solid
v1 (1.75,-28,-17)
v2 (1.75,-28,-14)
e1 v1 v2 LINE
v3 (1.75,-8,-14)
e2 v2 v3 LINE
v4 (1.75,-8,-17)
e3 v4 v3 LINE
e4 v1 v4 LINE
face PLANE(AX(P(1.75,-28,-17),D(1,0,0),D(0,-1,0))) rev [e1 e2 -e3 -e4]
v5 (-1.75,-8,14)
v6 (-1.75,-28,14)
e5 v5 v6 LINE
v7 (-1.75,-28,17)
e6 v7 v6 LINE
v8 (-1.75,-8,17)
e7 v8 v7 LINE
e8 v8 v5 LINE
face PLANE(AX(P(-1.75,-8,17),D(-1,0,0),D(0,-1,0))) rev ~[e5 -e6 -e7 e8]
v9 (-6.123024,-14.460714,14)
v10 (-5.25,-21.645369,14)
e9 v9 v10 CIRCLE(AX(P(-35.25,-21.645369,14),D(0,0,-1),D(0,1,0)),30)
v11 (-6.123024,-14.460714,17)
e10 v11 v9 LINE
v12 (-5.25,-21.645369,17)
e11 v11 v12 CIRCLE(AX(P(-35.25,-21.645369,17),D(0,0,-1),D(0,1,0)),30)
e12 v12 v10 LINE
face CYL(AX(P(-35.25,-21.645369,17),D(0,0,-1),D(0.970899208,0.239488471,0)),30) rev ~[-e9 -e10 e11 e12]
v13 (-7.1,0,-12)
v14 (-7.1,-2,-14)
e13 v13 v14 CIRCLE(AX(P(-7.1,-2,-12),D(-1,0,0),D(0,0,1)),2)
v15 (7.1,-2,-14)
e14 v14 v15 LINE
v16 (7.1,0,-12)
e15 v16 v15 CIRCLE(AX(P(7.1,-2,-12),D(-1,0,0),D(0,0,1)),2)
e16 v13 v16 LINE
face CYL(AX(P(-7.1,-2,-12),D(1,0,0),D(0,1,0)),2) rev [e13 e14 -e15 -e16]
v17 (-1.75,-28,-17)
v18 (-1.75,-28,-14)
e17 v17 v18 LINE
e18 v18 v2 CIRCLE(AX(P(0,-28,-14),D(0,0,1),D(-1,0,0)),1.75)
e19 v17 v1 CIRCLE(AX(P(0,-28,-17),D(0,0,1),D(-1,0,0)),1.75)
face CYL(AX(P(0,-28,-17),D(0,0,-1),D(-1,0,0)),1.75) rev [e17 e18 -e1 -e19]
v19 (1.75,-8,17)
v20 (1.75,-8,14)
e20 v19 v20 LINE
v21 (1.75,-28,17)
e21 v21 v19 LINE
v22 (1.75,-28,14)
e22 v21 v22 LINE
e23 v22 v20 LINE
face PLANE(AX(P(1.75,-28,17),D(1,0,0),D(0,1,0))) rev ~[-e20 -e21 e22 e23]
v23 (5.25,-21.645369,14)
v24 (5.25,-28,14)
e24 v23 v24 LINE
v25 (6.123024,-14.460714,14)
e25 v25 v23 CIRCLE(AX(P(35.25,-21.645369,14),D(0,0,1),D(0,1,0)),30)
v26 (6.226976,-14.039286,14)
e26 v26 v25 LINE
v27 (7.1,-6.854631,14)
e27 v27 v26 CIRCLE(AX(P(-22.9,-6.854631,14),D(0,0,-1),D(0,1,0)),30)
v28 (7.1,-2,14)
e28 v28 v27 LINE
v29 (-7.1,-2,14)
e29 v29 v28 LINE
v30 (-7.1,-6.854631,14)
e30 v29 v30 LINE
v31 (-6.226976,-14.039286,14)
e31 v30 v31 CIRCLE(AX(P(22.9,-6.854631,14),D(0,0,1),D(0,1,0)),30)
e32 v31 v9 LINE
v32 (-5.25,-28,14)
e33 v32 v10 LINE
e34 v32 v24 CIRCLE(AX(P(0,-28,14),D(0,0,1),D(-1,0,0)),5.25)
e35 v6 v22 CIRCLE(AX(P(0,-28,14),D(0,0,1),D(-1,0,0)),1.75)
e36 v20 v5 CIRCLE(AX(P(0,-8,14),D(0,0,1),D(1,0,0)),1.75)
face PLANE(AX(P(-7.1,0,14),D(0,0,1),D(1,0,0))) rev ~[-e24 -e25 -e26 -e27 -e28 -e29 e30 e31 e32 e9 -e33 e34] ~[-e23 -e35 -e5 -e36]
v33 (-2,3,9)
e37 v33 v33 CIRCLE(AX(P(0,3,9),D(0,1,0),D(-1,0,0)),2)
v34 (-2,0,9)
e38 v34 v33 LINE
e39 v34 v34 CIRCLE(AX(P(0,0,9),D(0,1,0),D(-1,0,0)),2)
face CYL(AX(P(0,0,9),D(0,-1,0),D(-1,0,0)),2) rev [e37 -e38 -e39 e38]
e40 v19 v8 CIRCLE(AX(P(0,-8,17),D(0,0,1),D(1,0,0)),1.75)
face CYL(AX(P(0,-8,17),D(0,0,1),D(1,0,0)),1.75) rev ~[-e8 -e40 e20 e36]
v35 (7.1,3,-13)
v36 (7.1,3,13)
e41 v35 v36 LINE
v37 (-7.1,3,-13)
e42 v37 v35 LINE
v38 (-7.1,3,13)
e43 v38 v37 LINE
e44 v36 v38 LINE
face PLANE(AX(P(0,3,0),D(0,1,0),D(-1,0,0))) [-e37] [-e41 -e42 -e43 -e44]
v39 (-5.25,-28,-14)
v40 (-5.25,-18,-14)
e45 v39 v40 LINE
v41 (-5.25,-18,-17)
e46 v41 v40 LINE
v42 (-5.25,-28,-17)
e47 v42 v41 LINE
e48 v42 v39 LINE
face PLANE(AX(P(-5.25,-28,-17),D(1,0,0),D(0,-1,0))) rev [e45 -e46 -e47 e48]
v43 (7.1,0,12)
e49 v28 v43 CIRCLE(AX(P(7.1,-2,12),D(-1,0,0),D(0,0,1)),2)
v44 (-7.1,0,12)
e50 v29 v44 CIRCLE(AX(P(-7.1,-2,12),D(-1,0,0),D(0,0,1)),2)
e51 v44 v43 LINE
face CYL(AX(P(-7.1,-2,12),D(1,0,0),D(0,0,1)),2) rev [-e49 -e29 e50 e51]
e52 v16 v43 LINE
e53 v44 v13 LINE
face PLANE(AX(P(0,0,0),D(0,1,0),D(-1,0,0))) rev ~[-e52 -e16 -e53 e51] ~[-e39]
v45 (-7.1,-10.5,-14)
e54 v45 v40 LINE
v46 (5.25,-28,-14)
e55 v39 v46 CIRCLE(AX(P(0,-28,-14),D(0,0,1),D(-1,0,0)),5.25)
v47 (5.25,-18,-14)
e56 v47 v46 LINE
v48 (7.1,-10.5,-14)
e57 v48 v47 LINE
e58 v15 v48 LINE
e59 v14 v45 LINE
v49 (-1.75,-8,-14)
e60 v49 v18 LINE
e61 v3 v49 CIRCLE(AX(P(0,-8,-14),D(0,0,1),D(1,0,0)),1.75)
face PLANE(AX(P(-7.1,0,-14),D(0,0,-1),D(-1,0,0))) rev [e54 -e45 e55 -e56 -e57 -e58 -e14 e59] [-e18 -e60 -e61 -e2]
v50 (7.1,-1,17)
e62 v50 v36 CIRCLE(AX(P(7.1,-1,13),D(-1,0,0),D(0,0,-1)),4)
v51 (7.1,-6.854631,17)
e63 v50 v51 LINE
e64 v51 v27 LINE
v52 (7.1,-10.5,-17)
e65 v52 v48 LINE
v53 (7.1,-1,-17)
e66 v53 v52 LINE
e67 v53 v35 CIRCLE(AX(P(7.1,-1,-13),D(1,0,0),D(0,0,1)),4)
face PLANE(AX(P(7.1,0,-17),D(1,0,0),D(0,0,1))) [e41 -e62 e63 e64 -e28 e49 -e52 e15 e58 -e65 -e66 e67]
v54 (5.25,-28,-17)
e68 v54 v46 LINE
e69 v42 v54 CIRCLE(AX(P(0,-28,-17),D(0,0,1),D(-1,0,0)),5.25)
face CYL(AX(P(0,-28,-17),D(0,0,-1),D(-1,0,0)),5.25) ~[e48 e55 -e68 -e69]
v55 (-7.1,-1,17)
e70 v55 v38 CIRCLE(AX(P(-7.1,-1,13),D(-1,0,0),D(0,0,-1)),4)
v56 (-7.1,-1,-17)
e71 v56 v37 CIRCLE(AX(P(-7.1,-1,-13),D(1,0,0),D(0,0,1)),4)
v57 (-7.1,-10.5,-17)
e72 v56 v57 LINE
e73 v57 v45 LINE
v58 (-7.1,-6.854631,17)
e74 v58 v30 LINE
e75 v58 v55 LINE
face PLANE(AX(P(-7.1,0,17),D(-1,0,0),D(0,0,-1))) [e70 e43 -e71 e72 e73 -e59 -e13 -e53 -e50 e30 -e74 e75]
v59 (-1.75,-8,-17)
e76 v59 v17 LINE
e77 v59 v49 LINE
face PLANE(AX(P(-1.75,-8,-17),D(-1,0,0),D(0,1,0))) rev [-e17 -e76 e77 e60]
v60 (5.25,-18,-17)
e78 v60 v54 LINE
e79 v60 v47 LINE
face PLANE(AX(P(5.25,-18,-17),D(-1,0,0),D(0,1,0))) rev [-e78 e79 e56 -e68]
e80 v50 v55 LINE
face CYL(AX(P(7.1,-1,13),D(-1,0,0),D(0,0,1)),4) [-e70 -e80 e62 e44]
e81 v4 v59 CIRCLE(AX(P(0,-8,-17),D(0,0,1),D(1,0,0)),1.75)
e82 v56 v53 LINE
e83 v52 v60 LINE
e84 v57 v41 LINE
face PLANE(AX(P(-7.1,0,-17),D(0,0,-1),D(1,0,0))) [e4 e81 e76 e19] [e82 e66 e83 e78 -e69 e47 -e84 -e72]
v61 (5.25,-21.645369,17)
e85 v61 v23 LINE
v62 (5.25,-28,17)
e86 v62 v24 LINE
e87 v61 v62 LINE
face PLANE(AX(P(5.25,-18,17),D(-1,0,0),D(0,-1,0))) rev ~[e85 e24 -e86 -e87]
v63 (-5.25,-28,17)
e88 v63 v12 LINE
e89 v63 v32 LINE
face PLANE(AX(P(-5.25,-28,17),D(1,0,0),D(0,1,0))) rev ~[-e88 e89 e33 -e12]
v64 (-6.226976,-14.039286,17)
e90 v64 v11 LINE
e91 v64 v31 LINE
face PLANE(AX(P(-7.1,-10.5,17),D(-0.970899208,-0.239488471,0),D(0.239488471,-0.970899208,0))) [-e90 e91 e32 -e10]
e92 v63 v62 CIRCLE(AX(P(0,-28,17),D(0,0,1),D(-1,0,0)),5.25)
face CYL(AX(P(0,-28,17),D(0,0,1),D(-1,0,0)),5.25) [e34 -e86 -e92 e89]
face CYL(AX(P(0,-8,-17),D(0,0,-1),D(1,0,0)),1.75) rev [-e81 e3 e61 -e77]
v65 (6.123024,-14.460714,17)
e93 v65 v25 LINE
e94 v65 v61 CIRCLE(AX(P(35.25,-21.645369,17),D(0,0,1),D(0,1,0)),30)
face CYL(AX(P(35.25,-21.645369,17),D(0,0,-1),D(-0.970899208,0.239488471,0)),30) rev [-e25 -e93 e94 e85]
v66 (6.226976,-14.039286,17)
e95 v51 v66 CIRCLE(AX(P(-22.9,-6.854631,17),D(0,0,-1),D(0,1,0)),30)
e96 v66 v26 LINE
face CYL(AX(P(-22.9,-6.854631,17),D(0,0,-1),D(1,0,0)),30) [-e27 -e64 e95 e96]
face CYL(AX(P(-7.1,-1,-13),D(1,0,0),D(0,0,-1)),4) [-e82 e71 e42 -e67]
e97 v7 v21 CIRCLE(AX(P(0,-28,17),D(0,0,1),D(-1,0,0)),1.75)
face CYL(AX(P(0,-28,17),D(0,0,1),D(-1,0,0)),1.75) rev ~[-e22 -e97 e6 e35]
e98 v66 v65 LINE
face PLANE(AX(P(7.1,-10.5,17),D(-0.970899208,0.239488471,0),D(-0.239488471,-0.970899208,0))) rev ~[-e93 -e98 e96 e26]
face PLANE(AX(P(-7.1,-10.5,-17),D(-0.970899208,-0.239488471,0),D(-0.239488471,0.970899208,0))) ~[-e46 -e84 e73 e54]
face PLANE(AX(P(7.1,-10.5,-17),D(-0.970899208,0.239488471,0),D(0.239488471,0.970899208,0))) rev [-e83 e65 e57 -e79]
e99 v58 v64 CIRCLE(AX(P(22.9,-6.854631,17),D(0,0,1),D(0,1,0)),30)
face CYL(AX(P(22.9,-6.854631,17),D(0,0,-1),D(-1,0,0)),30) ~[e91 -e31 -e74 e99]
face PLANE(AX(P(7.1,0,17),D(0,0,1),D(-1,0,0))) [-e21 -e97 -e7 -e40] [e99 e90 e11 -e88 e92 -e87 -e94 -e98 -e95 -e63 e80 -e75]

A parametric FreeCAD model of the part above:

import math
import FreeCAD as App
import Part
import Sketcher

V = App.Vector
Q = App.Units.Quantity


def edges_at(feature, points):
    """Names of the edges that pass closest to the given points."""
    edges = feature.Shape.Edges
    near = lambda p: min(range(len(edges)), key=lambda i: edges[i].distToShape(Part.Vertex(*p))[0])
    return sorted({f"Edge{near(p) + 1}" for p in points})

doc = App.newDocument("Part")
params = doc.addObject("Spreadsheet::Sheet", "Params")
for row, (alias, value) in enumerate([
    ("sketch1_diameter", "4 mm"),
    ("sketch1_height", "34 mm"),
    ("sketch1_width", "14.2 mm"),
    ("pad1_length", "3 mm"),
    ("sketch2_height", "20 mm"),
    ("sketch2_radius", "1.75 mm"),
    ("sketch2_height2", "10 mm"),
    ("sketch2_height3", "10.5 mm"),
    ("pad2_length", "3 mm"),
    ("fillet_radius", "30 mm"),
    ("fillet2_radius", "4 mm"),
    ("fillet3_radius", "2 mm"),
], start=1):
    params.set(f"A{row}", alias)
    params.set(f"B{row}", "=" + value)
    params.setAlias(f"B{row}", alias)

body = doc.addObject("PartDesign::Body", "Body")

sketch1 = body.newObject("Sketcher::SketchObject", "Sketch")
sketch1.AttachmentSupport = (doc.getObject("XZ_Plane"), [""])
sketch1.MapMode = "FlatFace"
sketch1.addGeometry([
    Part.LineSegment(V(7.1, -17, 0), V(-7.1, -17, 0)),
    Part.LineSegment(V(-7.1, -17, 0), V(-7.1, 17, 0)),
    Part.LineSegment(V(-7.1, 17, 0), V(7.1, 17, 0)),
    Part.LineSegment(V(7.1, 17, 0), V(7.1, -17, 0)),
    Part.Circle(V(0, 9, 0), V(0, 0, 1), 2),
], False)
sketch1.addConstraint([
    Sketcher.Constraint("Coincident", 0, 2, 1, 1),
    Sketcher.Constraint("Coincident", 1, 2, 2, 1),
    Sketcher.Constraint("Coincident", 2, 2, 3, 1),
    Sketcher.Constraint("Coincident", 3, 2, 0, 1),
    Sketcher.Constraint("Horizontal", 0),
    Sketcher.Constraint("Vertical", 1),
    Sketcher.Constraint("Horizontal", 2),
    Sketcher.Constraint("Vertical", 3),
    Sketcher.Constraint("Symmetric", 0, 2, 2, 2, -1, 1),
    Sketcher.Constraint("PointOnObject", 4, 3, -2),
    Sketcher.Constraint("Diameter", 4, Q("4 mm")),
    Sketcher.Constraint("DistanceY", 1, 1, 1, 2, Q("34 mm")),
    Sketcher.Constraint("DistanceX", 0, 2, 0, 1, Q("14.2 mm")),
    Sketcher.Constraint("DistanceY", 4, 3, 1, 2, Q("8 mm")),
])
sketch1.setExpression("Constraints[10]", "Params.sketch1_diameter")
sketch1.setExpression("Constraints[11]", "Params.sketch1_height")
sketch1.setExpression("Constraints[12]", "Params.sketch1_width")
pad1 = body.newObject("PartDesign::Pad", "Pad")
pad1.Profile = sketch1
pad1.setExpression("Length", "Params.pad1_length")
pad1.Reversed = True

sketch2 = body.newObject("Sketcher::SketchObject", "Sketch001")
sketch2.AttachmentSupport = (doc.getObject("XY_Plane"), [""])
sketch2.MapMode = "FlatFace"
sketch2.AttachmentOffset = App.Placement(V(0, 0, 17), App.Rotation())
sketch2.addGeometry([
    Part.LineSegment(V(7.1, 0, 0), V(-7.1, 0, 0)),
    Part.LineSegment(V(-7.1, 0, 0), V(-7.1, -10.5, 0)),
    Part.LineSegment(V(-7.1, -10.5, 0), V(-5.25, -18, 0)),
    Part.LineSegment(V(-5.25, -18, 0), V(-5.25, -28, 0)),
    Part.ArcOfCircle(Part.Circle(V(0, -28, 0), V(0, 0, 1), 5.25), math.radians(180), math.radians(360)),
    Part.LineSegment(V(5.25, -28, 0), V(5.25, -18, 0)),
    Part.LineSegment(V(5.25, -18, 0), V(7.1, -10.5, 0)),
    Part.LineSegment(V(7.1, -10.5, 0), V(7.1, 0, 0)),
    Part.ArcOfCircle(Part.Circle(V(0, -8, 0), V(0, 0, 1), 1.75), math.radians(0), math.radians(180)),
    Part.LineSegment(V(1.75, -8, 0), V(1.75, -28, 0)),
    Part.ArcOfCircle(Part.Circle(V(0, -28, 0), V(0, 0, 1), 1.75), math.radians(180), math.radians(360)),
    Part.LineSegment(V(-1.75, -28, 0), V(-1.75, -8, 0)),
], False)
sketch2.addConstraint([
    Sketcher.Constraint("Coincident", 0, 2, 1, 1),
    Sketcher.Constraint("Coincident", 1, 2, 2, 1),
    Sketcher.Constraint("Coincident", 2, 2, 3, 1),
    Sketcher.Constraint("Tangent", 3, 2, 4, 1),
    Sketcher.Constraint("Tangent", 4, 2, 5, 1),
    Sketcher.Constraint("Coincident", 5, 2, 6, 1),
    Sketcher.Constraint("Coincident", 6, 2, 7, 1),
    Sketcher.Constraint("Coincident", 7, 2, 0, 1),
    Sketcher.Constraint("Tangent", 8, 1, 9, 1),
    Sketcher.Constraint("Tangent", 9, 2, 10, 2),
    Sketcher.Constraint("Tangent", 10, 1, 11, 1),
    Sketcher.Constraint("Tangent", 11, 2, 8, 2),
    Sketcher.Constraint("Horizontal", 0),
    Sketcher.Constraint("Vertical", 1),
    Sketcher.Constraint("Vertical", 3),
    Sketcher.Constraint("Vertical", 5),
    Sketcher.Constraint("Vertical", 7),
    Sketcher.Constraint("Vertical", 9),
    Sketcher.Constraint("Vertical", 11),
    Sketcher.Constraint("Coincident", 10, 3, 4, 3),
    Sketcher.Constraint("Symmetric", 0, 2, 7, 2, -1, 1),
    Sketcher.Constraint("Symmetric", 2, 2, 5, 2, -2),
    Sketcher.Constraint("Horizontal", 1, 2, 6, 2),
    Sketcher.Constraint("DistanceY", 9, 2, 9, 1, Q("20 mm")),
    Sketcher.Constraint("Radius", 8, Q("1.75 mm")),
    Sketcher.Constraint("DistanceY", 2, 2, -1, 1, Q("18 mm")),
    Sketcher.Constraint("DistanceX", 0, 2, -1, 1, Q("7.1 mm")),
    Sketcher.Constraint("DistanceX", 8, 1, 5, 2, Q("3.5 mm")),
    Sketcher.Constraint("DistanceY", 3, 2, 3, 1, Q("10 mm")),
    Sketcher.Constraint("DistanceY", 1, 2, 1, 1, Q("10.5 mm")),
])
sketch2.setExpression("Constraints[23]", "Params.sketch2_height")
sketch2.setExpression("Constraints[24]", "Params.sketch2_radius")
sketch2.setExpression("Constraints[28]", "Params.sketch2_height2")
sketch2.setExpression("Constraints[29]", "Params.sketch2_height3")
pad2 = body.newObject("PartDesign::Pad", "Pad001")
pad2.Profile = sketch2
pad2.setExpression("Length", "Params.pad2_length")
pad2.Reversed = True
doc.recompute()

fillet = body.newObject("PartDesign::Fillet", "Fillet")
fillet.Base = (pad2, edges_at(pad2, [
    (7.1, -10.5, 15.5),
    (5.25, -18, 15.5),
    (-7.1, -10.5, 15.5),
    (-5.25, -18, 15.5),
]))
fillet.setExpression("Radius", "Params.fillet_radius")
doc.recompute()

mirrored = body.newObject("PartDesign::Mirrored", "Mirrored")
mirrored.Originals = [pad2]
mirrored.MirrorPlane = (doc.getObject("XY_Plane"), [""])
body.Tip = mirrored
doc.recompute()

fillet2 = body.newObject("PartDesign::Fillet", "Fillet001")
fillet2.Base = (mirrored, edges_at(mirrored, [(0, 3, 17), (0, 3, -17)]))
fillet2.setExpression("Radius", "Params.fillet2_radius")
doc.recompute()

fillet3 = body.newObject("PartDesign::Fillet", "Fillet002")
fillet3.Base = (fillet2, edges_at(fillet2, [(0, 0, 14), (0, 0, -14)]))
fillet3.setExpression("Radius", "Params.fillet3_radius")

doc.recompute()
